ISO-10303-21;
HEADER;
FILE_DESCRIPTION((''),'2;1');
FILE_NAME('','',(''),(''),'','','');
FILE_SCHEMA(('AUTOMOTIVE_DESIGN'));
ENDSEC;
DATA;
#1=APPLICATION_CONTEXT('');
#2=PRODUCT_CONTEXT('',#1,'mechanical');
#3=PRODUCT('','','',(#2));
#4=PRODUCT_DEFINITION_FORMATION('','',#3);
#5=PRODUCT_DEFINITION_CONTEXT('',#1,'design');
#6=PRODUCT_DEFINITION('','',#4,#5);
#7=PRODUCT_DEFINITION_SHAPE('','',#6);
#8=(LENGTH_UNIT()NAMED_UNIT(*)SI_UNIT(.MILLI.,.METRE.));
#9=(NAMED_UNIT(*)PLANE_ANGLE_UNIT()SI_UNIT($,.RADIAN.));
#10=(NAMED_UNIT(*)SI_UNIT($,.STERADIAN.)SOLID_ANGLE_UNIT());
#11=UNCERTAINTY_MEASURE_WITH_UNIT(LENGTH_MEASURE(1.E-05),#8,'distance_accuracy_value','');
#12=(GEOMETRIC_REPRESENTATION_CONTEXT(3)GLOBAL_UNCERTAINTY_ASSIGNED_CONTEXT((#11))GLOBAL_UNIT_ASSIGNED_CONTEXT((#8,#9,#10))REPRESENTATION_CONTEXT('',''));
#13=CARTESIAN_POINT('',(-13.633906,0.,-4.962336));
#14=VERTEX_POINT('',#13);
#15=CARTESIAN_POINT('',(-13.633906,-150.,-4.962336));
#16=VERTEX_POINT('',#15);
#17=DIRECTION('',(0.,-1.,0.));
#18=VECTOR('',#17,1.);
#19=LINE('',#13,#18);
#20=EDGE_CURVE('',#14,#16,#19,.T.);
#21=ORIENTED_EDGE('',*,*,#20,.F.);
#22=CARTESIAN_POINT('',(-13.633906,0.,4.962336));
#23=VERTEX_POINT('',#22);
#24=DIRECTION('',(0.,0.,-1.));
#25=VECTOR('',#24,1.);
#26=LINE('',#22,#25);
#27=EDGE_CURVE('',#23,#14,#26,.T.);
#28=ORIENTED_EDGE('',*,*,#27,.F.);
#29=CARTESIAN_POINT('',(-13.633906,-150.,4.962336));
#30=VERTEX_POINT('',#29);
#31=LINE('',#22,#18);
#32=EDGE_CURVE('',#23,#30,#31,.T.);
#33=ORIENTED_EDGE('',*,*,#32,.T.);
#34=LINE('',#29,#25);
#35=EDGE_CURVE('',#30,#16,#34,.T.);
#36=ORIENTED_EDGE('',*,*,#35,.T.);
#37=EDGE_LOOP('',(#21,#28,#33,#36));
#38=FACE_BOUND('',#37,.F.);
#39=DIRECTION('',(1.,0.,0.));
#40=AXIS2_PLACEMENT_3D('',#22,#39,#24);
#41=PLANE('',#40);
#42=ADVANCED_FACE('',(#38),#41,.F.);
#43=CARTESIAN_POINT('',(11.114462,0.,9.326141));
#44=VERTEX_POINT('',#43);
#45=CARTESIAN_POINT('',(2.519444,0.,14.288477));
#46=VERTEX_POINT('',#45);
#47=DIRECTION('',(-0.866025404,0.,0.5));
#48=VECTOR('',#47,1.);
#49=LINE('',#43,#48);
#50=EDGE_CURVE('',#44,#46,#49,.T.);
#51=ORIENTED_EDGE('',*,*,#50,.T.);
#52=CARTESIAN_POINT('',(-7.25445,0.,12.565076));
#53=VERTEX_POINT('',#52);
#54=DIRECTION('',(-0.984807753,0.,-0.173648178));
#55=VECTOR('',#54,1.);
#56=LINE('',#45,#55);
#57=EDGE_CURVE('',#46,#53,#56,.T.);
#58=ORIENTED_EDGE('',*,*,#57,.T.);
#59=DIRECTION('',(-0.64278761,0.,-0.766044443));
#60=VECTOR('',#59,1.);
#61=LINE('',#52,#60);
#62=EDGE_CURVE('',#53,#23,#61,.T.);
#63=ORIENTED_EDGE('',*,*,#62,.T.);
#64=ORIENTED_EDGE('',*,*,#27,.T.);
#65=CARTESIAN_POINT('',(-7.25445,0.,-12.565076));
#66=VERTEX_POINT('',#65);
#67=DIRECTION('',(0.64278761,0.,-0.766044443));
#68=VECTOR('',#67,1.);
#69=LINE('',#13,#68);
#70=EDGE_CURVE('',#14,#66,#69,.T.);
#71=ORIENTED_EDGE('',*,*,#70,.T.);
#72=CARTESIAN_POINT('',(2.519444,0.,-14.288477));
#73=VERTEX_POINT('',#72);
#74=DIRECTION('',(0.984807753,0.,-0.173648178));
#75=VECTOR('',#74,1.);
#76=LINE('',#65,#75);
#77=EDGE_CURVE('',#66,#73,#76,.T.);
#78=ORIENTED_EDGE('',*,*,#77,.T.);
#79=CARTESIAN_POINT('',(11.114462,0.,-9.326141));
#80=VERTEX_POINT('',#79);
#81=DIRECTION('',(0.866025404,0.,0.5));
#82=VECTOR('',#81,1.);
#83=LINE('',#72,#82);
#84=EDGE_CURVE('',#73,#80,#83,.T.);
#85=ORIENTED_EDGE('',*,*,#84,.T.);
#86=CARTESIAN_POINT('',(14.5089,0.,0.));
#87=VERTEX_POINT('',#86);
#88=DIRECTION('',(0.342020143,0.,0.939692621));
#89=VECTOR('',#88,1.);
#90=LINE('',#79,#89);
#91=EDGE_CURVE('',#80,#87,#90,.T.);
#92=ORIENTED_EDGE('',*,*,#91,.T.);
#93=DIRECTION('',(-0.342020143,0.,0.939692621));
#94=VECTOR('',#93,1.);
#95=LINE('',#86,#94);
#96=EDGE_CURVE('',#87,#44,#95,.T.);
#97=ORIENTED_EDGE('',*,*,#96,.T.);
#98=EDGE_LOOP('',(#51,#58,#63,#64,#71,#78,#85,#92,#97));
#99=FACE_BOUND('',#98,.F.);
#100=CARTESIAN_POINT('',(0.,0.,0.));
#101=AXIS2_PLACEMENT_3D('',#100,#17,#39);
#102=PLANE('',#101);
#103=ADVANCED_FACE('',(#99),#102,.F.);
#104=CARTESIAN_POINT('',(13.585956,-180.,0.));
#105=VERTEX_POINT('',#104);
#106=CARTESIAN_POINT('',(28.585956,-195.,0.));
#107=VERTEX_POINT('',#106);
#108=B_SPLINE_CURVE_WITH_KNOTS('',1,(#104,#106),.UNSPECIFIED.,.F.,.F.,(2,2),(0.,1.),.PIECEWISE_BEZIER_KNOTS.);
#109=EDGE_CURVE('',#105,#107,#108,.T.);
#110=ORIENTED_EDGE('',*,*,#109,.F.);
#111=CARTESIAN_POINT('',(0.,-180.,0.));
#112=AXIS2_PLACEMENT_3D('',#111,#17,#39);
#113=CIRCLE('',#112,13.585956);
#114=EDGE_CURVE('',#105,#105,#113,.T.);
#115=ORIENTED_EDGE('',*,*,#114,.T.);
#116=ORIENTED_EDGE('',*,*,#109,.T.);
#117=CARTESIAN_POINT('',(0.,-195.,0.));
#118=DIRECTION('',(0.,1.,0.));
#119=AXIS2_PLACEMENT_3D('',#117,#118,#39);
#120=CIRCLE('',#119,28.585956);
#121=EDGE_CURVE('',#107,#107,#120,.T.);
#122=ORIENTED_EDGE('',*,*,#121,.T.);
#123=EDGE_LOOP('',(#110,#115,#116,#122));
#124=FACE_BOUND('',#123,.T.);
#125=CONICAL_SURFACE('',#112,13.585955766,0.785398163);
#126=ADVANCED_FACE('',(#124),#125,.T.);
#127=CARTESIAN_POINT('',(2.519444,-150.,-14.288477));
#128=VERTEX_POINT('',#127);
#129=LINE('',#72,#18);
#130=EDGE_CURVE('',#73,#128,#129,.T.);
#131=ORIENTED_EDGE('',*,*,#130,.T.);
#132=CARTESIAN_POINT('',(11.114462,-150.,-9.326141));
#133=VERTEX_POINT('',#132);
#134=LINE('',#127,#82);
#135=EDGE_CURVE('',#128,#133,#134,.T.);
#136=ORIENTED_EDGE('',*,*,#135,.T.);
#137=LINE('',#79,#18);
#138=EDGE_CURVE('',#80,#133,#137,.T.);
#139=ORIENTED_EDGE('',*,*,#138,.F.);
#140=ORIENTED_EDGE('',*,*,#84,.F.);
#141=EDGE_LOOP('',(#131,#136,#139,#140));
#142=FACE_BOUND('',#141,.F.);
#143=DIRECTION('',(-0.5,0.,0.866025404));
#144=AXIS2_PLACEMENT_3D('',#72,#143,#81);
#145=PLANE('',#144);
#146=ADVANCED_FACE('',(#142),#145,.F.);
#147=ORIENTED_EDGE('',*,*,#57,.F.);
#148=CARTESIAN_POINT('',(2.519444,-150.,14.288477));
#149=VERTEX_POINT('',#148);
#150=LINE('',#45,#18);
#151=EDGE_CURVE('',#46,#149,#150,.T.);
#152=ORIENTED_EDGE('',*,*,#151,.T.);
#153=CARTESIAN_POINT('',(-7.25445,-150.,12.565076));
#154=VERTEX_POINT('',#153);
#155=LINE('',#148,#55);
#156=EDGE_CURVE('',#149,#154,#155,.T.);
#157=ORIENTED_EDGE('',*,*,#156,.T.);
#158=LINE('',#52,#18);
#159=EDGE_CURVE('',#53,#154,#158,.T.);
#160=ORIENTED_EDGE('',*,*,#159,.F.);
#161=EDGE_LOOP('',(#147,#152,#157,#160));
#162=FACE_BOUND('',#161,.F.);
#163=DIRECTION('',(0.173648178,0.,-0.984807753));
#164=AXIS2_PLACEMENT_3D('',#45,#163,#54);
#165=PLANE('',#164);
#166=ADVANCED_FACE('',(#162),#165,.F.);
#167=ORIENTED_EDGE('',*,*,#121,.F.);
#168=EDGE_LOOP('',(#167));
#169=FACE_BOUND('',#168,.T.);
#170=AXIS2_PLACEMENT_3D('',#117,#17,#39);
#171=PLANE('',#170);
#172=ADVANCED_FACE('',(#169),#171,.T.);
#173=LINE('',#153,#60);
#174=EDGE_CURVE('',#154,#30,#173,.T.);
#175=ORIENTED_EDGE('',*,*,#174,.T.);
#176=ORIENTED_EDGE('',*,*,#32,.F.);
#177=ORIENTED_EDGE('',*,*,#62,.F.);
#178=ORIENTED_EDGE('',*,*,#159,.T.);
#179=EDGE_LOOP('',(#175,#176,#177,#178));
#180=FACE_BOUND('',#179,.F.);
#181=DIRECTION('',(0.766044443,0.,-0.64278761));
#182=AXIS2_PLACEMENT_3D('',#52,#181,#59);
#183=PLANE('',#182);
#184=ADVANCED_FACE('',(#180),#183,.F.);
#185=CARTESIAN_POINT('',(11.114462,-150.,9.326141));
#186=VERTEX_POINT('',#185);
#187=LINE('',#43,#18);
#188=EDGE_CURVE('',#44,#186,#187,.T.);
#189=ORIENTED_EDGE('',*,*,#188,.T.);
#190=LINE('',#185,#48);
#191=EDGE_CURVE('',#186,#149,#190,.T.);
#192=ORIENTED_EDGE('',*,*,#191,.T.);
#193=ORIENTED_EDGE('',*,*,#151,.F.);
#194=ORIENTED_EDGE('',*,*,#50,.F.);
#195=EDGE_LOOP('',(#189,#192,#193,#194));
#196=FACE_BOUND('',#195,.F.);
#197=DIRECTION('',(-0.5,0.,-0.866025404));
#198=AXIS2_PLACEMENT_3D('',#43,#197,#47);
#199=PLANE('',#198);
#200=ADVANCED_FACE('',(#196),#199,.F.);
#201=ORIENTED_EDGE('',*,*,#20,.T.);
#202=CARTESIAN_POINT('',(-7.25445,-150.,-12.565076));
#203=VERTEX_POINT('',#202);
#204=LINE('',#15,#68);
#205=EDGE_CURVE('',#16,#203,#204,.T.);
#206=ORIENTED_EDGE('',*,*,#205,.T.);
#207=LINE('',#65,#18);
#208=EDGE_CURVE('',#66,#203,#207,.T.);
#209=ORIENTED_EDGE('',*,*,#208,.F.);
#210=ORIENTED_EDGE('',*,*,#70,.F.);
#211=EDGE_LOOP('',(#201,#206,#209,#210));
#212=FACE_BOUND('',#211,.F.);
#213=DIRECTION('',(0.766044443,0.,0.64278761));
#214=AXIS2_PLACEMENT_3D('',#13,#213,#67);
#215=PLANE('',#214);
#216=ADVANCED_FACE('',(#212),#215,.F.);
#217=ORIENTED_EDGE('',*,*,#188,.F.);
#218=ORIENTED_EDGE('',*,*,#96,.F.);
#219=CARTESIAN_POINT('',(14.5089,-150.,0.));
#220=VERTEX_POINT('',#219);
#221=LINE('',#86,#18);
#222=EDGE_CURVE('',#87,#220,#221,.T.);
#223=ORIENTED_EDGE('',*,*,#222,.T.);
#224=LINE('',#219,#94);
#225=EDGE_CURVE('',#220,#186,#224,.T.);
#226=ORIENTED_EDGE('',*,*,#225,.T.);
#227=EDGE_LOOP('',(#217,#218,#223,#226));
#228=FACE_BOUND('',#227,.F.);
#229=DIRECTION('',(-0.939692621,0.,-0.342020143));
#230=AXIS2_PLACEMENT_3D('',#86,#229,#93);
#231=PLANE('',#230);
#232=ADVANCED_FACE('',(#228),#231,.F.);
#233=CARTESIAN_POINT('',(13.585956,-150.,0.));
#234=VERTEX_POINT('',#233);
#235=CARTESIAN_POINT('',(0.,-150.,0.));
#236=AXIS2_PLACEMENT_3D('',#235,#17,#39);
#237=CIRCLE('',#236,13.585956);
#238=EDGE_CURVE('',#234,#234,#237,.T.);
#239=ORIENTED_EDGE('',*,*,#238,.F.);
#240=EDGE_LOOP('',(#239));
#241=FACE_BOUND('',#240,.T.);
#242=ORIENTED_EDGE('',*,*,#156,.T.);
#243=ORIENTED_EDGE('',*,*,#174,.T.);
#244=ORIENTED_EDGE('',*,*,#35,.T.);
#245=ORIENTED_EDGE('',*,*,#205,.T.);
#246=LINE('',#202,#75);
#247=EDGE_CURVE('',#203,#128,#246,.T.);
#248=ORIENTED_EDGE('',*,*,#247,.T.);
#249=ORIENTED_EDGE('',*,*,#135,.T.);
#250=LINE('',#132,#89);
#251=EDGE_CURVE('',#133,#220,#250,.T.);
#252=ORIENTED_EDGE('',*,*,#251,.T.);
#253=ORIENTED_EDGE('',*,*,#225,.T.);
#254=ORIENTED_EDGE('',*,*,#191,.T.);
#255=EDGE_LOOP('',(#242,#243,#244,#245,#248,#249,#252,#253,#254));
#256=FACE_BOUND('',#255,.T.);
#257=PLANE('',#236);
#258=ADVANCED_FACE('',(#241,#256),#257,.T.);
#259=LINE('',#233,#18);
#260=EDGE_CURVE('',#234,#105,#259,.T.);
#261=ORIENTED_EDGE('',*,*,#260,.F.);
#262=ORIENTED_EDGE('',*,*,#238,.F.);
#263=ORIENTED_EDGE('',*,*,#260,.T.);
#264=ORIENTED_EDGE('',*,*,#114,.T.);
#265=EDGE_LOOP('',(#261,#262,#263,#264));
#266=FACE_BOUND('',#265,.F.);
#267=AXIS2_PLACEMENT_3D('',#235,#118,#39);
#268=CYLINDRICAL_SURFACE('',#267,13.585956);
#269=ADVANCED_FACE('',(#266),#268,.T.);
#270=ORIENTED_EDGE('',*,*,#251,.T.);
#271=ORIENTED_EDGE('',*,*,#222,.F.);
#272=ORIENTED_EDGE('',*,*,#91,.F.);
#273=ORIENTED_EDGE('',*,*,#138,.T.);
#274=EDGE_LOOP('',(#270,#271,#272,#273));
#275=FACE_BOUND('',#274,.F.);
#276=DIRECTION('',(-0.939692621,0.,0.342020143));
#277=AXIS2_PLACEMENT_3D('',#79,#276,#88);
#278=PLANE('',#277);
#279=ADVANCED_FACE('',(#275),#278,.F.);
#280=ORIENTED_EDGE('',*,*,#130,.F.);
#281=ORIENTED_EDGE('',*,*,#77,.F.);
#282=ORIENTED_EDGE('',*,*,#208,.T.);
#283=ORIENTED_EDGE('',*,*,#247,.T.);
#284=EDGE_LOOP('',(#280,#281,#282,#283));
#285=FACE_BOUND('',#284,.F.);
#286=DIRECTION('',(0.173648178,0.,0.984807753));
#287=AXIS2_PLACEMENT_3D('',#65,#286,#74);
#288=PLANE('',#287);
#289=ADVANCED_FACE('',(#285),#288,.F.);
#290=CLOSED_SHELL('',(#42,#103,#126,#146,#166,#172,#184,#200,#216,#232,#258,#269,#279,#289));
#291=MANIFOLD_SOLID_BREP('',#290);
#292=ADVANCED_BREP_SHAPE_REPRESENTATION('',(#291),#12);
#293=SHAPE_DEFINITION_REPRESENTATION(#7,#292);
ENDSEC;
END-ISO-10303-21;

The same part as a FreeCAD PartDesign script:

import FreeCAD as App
import Part
import Sketcher
from FreeCAD import Vector
Q = App.Units.Quantity

doc = App.newDocument("Part")
body = doc.addObject("PartDesign::Body", "Body")

sketch1 = body.newObject("Sketcher::SketchObject", "Sketch")
sketch1.AttachmentSupport = (doc.getObject("XZ_Plane"), [""])
sketch1.MapMode = "FlatFace"
sketch1.addGeometry(Part.LineSegment(Vector(-13.633906, 4.962336, 0), Vector(-13.633906, -4.962336, 0)), False)
sketch1.addGeometry(Part.LineSegment(Vector(-13.633906, -4.962336, 0), Vector(-7.25445, -12.565076, 0)), False)
sketch1.addGeometry(Part.LineSegment(Vector(-7.25445, -12.565076, 0), Vector(2.519444, -14.288477, 0)), False)
sketch1.addGeometry(Part.LineSegment(Vector(2.519444, -14.288477, 0), Vector(11.114462, -9.326141, 0)), False)
sketch1.addGeometry(Part.LineSegment(Vector(11.114462, -9.326141, 0), Vector(14.5089, 0, 0)), False)
sketch1.addGeometry(Part.LineSegment(Vector(14.5089, 0, 0), Vector(11.114462, 9.326141, 0)), False)
sketch1.addGeometry(Part.LineSegment(Vector(11.114462, 9.326141, 0), Vector(2.519444, 14.288477, 0)), False)
sketch1.addGeometry(Part.LineSegment(Vector(2.519444, 14.288477, 0), Vector(-7.25445, 12.565076, 0)), False)
sketch1.addGeometry(Part.LineSegment(Vector(-7.25445, 12.565076, 0), Vector(-13.633906, 4.962336, 0)), False)
sketch1.addConstraint(Sketcher.Constraint("Coincident", 0, 2, 1, 1))
sketch1.addConstraint(Sketcher.Constraint("Coincident", 1, 2, 2, 1))
sketch1.addConstraint(Sketcher.Constraint("Coincident", 2, 2, 3, 1))
sketch1.addConstraint(Sketcher.Constraint("Coincident", 3, 2, 4, 1))
sketch1.addConstraint(Sketcher.Constraint("Coincident", 4, 2, 5, 1))
sketch1.addConstraint(Sketcher.Constraint("Coincident", 5, 2, 6, 1))
sketch1.addConstraint(Sketcher.Constraint("Coincident", 6, 2, 7, 1))
sketch1.addConstraint(Sketcher.Constraint("Coincident", 7, 2, 8, 1))
sketch1.addConstraint(Sketcher.Constraint("Coincident", 8, 2, 0, 1))
sketch1.addConstraint(Sketcher.Constraint("Vertical", 0))
sketch1.addConstraint(Sketcher.Constraint("Symmetric", 3, 2, 5, 2, -1))
sketch1.addConstraint(Sketcher.Constraint("Symmetric", 2, 2, 6, 2, -1))
sketch1.addConstraint(Sketcher.Constraint("Symmetric", 1, 2, 7, 2, -1))
sketch1.addConstraint(Sketcher.Constraint("PointOnObject", 4, 2, -1))
sketch1.addConstraint(Sketcher.Constraint("Equal", 1, 2))
sketch1.addConstraint(Sketcher.Constraint("Equal", 2, 3))
sketch1.addConstraint(Sketcher.Constraint("Equal", 3, 4))
sketch1.addConstraint(Sketcher.Constraint("Equal", 7, 8))
sketch1.addConstraint(Sketcher.Constraint("Angle", 1, Q("-50 deg")))
sketch1.addConstraint(Sketcher.Constraint("Angle", 2, Q("-10 deg")))
sketch1.addConstraint(Sketcher.Constraint("Angle", 3, Q("30 deg")))
sketch1.addConstraint(Sketcher.Constraint("Angle", 4, Q("70 deg")))
sketch1.addConstraint(Sketcher.Constraint("DistanceY", 0, 2, 0, 1, Q("9.924672 mm")))
sketch1.addConstraint(Sketcher.Constraint("DistanceX", -1, 1, 4, 2, Q("14.5089 mm")))
pad1 = body.newObject("PartDesign::Pad", "Pad")
pad1.Profile = sketch1
pad1.Length = 150

sketch2 = body.newObject("Sketcher::SketchObject", "Sketch001")
sketch2.AttachmentSupport = (doc.getObject("XZ_Plane"), [""])
sketch2.MapMode = "FlatFace"
sketch2.AttachmentOffset = App.Placement(Vector(0, 0, 150), App.Rotation())
sketch2.addGeometry(Part.Circle(Vector(0, 0, 0), Vector(0, 0, 1), 13.585956), False)
sketch2.addConstraint(Sketcher.Constraint("Coincident", 0, 3, -1, 1))
sketch2.addConstraint(Sketcher.Constraint("Diameter", 0, Q("27.171912 mm")))
pad2 = body.newObject("PartDesign::Pad", "Pad001")
pad2.Profile = sketch2
pad2.Length = 30

sketch3 = body.newObject("Sketcher::SketchObject", "Sketch002")
sketch3.AttachmentSupport = (doc.getObject("XZ_Plane"), [""])
sketch3.MapMode = "FlatFace"
sketch3.AttachmentOffset = App.Placement(Vector(0, 0, 180), App.Rotation())
sketch3.addGeometry(Part.Circle(Vector(0, 0, 0), Vector(0, 0, 1), 13.585956), False)
sketch3.addConstraint(Sketcher.Constraint("Coincident", 0, 3, -1, 1))
sketch3.addConstraint(Sketcher.Constraint("Diameter", 0, Q("27.171912 mm")))
pad3 = body.newObject("PartDesign::Pad", "Pad002")
pad3.Profile = sketch3
pad3.Length = 15
pad3.TaperAngle = 45

doc.recompute()
